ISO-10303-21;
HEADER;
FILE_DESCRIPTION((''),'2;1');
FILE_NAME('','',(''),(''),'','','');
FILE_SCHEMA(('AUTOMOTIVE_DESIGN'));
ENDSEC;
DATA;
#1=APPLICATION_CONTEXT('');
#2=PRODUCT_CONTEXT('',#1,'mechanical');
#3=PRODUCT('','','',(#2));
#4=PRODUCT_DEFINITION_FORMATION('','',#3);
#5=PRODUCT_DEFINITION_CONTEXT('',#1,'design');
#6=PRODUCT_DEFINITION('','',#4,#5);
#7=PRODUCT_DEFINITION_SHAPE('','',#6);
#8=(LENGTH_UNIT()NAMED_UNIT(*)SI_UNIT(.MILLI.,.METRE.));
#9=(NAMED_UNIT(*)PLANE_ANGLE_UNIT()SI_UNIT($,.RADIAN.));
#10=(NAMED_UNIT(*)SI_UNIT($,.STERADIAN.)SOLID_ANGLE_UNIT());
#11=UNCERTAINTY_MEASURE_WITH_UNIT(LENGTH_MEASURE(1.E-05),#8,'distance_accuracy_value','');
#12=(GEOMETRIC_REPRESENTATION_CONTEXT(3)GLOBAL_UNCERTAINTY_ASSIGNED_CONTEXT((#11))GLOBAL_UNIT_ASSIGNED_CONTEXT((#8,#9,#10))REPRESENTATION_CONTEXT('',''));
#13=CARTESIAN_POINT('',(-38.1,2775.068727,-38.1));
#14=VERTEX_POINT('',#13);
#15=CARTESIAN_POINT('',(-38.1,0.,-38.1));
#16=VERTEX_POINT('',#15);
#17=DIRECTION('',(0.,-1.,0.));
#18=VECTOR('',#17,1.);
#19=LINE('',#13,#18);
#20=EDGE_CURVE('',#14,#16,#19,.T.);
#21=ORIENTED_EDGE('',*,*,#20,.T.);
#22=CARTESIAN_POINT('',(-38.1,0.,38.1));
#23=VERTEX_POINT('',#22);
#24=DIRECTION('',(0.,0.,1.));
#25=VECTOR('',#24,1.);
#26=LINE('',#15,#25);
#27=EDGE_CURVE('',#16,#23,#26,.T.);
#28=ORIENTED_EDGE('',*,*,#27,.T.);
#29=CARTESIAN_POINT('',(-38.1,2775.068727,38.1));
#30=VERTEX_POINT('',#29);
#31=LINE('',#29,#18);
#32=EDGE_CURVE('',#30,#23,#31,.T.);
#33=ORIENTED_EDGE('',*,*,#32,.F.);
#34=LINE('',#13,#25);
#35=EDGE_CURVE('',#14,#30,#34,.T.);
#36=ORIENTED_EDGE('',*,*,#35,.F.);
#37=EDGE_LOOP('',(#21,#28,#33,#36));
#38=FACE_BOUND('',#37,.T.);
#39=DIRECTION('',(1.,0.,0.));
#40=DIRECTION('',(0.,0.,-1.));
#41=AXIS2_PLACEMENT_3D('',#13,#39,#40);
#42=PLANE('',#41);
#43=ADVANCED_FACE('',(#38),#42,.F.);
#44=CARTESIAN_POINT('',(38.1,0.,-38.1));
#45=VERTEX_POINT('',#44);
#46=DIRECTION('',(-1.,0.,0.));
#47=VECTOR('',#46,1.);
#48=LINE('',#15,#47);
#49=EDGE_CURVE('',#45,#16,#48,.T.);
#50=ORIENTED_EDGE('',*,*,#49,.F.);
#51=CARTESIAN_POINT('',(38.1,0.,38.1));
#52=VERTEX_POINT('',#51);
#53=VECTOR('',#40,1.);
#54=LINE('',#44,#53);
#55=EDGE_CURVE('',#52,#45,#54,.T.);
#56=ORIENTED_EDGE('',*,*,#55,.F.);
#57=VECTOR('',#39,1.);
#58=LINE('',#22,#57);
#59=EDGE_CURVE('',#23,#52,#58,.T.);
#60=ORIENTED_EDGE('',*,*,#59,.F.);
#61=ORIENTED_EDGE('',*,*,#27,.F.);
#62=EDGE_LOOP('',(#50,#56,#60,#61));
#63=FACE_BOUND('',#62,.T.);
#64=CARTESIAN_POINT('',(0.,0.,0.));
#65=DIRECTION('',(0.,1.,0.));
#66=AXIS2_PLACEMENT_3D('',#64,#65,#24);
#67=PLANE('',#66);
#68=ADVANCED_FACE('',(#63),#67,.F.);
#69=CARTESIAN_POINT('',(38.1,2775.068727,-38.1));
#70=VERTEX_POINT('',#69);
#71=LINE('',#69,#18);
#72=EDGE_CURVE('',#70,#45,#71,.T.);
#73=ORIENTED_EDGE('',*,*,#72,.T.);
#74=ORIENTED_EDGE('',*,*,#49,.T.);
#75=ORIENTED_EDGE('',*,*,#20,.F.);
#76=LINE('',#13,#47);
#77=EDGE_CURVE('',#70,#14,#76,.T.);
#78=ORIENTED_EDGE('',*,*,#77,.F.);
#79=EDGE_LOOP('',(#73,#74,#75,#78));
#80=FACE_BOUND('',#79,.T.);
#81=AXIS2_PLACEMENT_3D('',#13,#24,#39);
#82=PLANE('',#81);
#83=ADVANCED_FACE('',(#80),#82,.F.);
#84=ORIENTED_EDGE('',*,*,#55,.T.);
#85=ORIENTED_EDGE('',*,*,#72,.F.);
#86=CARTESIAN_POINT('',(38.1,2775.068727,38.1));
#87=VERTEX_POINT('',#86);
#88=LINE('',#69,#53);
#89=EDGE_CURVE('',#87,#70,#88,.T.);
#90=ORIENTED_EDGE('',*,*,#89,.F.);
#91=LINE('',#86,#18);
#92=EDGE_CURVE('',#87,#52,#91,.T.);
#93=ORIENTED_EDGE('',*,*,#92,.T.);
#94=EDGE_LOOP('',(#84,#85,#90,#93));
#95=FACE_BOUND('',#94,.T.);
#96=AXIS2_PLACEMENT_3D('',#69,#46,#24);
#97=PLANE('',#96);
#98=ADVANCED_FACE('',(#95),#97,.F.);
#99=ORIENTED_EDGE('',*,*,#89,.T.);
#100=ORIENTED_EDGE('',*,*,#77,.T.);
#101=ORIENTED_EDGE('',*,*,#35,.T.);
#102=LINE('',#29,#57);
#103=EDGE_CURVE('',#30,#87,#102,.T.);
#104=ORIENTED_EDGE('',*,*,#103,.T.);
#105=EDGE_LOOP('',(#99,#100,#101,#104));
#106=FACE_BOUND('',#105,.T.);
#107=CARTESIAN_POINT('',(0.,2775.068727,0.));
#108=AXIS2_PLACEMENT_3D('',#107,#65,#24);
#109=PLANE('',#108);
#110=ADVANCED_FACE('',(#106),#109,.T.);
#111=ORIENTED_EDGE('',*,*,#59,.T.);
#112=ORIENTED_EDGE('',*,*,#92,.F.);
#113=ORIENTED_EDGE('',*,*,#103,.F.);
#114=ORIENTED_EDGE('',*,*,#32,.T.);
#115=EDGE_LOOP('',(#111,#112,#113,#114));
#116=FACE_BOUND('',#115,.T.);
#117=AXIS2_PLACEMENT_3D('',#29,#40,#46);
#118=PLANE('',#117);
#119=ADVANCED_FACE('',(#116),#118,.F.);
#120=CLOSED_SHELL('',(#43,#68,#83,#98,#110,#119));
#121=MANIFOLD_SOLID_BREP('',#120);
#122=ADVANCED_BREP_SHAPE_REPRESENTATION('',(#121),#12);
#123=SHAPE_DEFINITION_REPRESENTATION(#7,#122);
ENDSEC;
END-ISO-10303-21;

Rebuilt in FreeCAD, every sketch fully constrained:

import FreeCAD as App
import Part
import Sketcher

V = App.Vector
Q = App.Units.Quantity


def add_polygon(sketch, points):
    """Adds a closed chain of lines whose ends are joined by coincident constraints."""
    first, n = sketch.GeometryCount, len(points)
    for a, b in zip(points, points[1:] + points[:1]):
        sketch.addGeometry(Part.LineSegment(App.Vector(*a, 0), App.Vector(*b, 0)), False)
    for i in range(n):
        sketch.addConstraint(Sketcher.Constraint("Coincident", first + i, 2, first + (i + 1) % n, 1))

doc = App.newDocument("Part")
body = doc.addObject("PartDesign::Body", "Body")

# Sketch on XZ plane
sketch1 = body.newObject("Sketcher::SketchObject", "Sketch")
sketch1.AttachmentSupport = (doc.getObject("XZ_Plane"), [""])
sketch1.MapMode = "FlatFace"
add_polygon(sketch1, [(-38.1, -38.1), (-38.1, 38.1), (38.1, 38.1), (38.1, -38.1)])  # lines 0-3
sketch1.addConstraint(Sketcher.Constraint("Vertical", 0))
sketch1.addConstraint(Sketcher.Constraint("Horizontal", 1))
sketch1.addConstraint(Sketcher.Constraint("Vertical", 2))
sketch1.addConstraint(Sketcher.Constraint("Horizontal", 3))
sketch1.addConstraint(Sketcher.Constraint("Symmetric", 0, 2, 2, 2, -1, 1))
sketch1.addConstraint(Sketcher.Constraint("Equal", 3, 0))
sketch1.addConstraint(Sketcher.Constraint("DistanceX", 1, 1, 1, 2, Q("3 in")))
pad1 = body.newObject("PartDesign::Pad", "Pad")
pad1.Profile = sketch1
pad1.Length = 2775.068727
pad1.Reversed = True

doc.recompute()
